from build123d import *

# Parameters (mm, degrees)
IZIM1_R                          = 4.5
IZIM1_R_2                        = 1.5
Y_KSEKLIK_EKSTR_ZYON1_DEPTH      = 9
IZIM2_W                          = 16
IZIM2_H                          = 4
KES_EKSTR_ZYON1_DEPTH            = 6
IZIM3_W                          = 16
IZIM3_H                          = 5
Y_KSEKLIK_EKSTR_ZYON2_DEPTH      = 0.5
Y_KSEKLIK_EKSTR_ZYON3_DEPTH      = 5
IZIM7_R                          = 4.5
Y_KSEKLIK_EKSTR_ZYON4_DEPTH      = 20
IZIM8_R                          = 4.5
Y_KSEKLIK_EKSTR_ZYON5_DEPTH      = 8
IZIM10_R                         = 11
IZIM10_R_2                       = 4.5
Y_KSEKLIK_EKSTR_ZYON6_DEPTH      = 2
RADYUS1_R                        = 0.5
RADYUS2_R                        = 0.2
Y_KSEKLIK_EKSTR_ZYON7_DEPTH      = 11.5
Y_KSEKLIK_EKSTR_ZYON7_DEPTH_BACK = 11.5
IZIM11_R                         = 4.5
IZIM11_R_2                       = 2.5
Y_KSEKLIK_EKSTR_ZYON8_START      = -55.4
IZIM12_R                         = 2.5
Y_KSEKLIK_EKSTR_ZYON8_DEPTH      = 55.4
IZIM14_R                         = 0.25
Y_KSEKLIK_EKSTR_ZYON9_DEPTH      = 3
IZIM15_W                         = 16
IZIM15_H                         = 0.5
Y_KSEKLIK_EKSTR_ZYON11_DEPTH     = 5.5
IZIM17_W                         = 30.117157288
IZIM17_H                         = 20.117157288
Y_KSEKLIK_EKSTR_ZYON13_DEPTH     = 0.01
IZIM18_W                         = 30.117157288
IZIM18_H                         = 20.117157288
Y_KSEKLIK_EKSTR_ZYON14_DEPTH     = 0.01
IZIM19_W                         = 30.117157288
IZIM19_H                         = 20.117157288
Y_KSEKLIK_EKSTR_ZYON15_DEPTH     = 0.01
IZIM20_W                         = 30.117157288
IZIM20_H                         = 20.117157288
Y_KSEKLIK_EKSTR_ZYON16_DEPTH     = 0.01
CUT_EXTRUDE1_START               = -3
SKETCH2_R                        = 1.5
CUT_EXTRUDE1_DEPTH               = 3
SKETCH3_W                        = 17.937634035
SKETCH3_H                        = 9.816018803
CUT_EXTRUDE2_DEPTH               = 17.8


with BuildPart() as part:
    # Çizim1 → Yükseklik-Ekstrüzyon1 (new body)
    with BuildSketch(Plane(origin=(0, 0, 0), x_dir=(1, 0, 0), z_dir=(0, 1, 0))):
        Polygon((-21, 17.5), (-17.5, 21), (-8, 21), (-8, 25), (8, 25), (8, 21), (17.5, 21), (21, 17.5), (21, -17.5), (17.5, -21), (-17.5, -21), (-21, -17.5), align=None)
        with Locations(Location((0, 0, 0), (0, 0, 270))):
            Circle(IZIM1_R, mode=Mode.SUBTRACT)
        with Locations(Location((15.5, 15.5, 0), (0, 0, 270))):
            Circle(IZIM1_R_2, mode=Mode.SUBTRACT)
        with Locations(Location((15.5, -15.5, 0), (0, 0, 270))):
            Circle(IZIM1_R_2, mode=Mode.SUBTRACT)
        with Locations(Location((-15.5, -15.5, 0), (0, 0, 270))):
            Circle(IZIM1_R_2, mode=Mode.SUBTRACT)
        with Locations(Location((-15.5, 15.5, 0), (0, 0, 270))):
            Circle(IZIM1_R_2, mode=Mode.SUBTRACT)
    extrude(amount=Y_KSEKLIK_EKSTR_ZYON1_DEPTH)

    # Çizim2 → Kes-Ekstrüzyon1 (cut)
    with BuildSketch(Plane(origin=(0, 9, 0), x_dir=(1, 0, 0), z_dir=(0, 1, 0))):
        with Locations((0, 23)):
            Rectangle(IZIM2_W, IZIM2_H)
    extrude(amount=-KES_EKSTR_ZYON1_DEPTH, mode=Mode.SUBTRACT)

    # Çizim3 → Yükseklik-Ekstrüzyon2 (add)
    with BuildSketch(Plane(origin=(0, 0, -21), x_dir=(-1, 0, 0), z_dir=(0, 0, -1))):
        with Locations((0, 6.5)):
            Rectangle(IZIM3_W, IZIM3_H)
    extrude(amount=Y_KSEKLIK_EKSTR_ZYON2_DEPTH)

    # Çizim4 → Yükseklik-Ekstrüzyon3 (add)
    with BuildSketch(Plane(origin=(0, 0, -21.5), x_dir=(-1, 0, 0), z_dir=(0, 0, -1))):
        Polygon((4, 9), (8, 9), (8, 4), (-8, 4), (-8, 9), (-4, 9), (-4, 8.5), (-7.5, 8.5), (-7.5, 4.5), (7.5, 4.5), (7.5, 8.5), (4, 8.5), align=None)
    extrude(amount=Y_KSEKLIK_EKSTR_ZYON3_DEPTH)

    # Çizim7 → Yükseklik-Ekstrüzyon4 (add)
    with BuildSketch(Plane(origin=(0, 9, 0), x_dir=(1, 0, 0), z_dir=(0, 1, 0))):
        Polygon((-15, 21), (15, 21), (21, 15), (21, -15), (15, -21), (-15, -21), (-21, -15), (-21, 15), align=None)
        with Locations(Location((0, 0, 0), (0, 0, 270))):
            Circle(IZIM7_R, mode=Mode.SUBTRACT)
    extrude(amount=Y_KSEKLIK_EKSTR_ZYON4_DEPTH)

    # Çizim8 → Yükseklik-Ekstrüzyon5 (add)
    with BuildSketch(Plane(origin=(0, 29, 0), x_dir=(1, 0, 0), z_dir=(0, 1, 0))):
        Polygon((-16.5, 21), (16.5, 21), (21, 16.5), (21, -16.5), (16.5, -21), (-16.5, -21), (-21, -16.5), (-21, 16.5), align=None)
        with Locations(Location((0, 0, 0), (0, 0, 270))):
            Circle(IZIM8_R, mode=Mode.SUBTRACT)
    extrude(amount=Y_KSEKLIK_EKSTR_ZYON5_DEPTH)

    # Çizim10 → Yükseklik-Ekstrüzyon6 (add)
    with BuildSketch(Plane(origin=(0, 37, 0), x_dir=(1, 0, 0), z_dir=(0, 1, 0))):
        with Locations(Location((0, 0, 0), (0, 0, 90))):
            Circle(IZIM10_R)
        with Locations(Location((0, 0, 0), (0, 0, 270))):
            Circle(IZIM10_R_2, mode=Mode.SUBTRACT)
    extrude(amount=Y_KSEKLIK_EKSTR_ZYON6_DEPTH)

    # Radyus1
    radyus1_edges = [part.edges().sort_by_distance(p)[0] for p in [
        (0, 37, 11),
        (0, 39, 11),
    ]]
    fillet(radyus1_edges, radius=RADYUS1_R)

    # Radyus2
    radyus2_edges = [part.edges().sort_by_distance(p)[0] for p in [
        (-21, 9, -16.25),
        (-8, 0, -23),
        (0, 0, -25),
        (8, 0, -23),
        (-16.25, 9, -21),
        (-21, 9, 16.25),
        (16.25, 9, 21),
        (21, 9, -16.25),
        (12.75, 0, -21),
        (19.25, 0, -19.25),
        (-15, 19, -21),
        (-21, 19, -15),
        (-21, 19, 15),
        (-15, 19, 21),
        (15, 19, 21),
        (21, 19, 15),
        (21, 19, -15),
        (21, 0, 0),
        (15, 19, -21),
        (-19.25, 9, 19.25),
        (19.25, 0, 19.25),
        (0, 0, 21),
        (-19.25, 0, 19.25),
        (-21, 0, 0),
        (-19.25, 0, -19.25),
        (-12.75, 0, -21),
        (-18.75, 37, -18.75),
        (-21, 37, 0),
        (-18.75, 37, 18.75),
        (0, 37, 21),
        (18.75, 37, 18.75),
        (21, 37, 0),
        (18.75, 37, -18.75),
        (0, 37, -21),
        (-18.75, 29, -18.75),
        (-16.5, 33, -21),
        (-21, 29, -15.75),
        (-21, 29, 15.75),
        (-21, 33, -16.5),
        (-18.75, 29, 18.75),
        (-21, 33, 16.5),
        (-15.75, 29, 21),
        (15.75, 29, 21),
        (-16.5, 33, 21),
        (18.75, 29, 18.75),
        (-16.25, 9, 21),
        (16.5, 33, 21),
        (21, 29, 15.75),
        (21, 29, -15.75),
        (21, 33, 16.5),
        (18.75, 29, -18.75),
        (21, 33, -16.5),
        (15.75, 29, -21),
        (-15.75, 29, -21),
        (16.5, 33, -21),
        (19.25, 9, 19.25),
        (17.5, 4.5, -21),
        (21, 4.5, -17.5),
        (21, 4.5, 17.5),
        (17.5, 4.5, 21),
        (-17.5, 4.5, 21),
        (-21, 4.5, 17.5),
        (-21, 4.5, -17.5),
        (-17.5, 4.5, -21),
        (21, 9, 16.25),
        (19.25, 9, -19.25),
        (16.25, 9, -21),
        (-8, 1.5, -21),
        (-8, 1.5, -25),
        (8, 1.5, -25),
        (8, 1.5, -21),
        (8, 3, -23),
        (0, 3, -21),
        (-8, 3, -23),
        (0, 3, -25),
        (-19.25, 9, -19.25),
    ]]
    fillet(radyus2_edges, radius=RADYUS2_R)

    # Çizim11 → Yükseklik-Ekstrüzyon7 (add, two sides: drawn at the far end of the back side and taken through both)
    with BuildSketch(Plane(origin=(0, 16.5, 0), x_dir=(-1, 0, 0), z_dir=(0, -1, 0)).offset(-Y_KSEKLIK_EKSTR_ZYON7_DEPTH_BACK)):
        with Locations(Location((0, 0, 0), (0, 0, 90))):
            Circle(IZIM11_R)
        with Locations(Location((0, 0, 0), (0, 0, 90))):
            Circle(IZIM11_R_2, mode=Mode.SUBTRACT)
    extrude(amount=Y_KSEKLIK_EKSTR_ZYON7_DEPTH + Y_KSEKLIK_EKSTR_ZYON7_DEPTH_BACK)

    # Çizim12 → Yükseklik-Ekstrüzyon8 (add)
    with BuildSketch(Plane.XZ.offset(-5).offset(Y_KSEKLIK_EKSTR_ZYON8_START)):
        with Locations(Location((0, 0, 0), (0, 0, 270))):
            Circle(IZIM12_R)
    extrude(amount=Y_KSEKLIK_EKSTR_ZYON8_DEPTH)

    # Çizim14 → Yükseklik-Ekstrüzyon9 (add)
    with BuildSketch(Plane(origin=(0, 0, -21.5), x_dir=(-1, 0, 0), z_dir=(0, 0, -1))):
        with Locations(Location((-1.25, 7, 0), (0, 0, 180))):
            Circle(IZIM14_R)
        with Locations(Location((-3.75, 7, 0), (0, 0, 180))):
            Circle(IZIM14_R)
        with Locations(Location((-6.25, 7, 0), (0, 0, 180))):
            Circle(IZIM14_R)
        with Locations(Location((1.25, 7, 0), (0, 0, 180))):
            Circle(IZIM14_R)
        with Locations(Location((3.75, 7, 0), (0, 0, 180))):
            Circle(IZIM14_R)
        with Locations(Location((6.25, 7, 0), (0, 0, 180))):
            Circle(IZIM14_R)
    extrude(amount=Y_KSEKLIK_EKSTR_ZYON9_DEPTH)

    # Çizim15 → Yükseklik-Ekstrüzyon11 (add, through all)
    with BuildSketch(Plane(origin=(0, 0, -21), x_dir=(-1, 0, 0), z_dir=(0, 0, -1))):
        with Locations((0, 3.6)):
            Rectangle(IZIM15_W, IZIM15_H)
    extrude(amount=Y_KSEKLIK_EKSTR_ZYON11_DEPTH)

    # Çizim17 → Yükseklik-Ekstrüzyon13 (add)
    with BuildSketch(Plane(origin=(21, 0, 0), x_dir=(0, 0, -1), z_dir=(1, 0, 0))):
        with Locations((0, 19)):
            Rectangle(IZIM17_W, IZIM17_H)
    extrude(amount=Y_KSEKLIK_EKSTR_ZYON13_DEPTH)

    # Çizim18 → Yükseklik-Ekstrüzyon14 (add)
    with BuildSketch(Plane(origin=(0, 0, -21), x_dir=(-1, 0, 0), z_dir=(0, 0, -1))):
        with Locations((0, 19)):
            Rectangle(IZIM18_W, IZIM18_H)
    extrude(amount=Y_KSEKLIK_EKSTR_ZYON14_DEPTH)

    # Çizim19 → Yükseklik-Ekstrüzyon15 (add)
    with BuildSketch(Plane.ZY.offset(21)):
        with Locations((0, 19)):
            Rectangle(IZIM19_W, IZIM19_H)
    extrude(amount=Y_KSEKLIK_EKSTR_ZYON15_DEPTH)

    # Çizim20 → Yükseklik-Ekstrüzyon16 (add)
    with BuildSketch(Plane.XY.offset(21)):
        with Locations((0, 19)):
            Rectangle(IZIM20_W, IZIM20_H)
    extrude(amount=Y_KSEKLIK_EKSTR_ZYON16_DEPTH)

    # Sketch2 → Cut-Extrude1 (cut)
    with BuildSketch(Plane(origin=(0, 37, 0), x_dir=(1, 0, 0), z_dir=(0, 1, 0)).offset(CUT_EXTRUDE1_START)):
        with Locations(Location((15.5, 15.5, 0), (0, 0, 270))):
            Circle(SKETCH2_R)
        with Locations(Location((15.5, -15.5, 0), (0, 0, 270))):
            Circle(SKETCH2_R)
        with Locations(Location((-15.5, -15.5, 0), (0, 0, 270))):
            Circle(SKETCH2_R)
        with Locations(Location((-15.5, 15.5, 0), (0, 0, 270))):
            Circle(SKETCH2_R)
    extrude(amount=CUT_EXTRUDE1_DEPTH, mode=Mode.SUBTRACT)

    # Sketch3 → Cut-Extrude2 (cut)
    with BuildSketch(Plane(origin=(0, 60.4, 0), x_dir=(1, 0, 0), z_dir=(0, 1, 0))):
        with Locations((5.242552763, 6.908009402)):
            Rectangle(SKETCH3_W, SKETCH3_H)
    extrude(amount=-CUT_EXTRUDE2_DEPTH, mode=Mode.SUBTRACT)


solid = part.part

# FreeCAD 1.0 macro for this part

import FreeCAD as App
import Part
import Sketcher
from FreeCAD import Vector
Q = App.Units.Quantity


def edges_at(feature, points):
    """Names of the edges that pass closest to the given points."""
    edges = feature.Shape.Edges
    near = lambda p: min(range(len(edges)), key=lambda i: edges[i].distToShape(Part.Vertex(*p))[0])
    return sorted({f"Edge{near(p) + 1}" for p in points})

doc = App.newDocument("Part")
body = doc.addObject("PartDesign::Body", "Body")

# Sketch on XZ plane
sketch1 = doc.addObject("Sketcher::SketchObject", "Sketch")
body.addObject(sketch1)
sketch1.AttachmentSupport = (doc.XZ_Plane, [""])
sketch1.MapMode = "FlatFace"
sketch1.addGeometry([
    Part.LineSegment(Vector(-17.5, -21, 0), Vector(-21, -17.5, 0)),  # 0
    Part.LineSegment(Vector(-21, -17.5, 0), Vector(-21, 17.5, 0)),  # 1
    Part.LineSegment(Vector(-21, 17.5, 0), Vector(-17.5, 21, 0)),  # 2
    Part.LineSegment(Vector(-17.5, 21, 0), Vector(17.5, 21, 0)),  # 3
    Part.LineSegment(Vector(17.5, 21, 0), Vector(21, 17.5, 0)),  # 4
    Part.LineSegment(Vector(21, 17.5, 0), Vector(21, -17.5, 0)),  # 5
    Part.LineSegment(Vector(21, -17.5, 0), Vector(17.5, -21, 0)),  # 6
    Part.LineSegment(Vector(17.5, -21, 0), Vector(8, -21, 0)),  # 7
    Part.LineSegment(Vector(8, -21, 0), Vector(8, -25, 0)),  # 8
    Part.LineSegment(Vector(8, -25, 0), Vector(-8, -25, 0)),  # 9
    Part.LineSegment(Vector(-8, -25, 0), Vector(-8, -21, 0)),  # 10
    Part.LineSegment(Vector(-8, -21, 0), Vector(-17.5, -21, 0)),  # 11
    Part.Circle(Vector(15.5, 15.5, 0), Vector(0, 0, 1), 1.5),  # 12
    Part.Circle(Vector(-15.5, 15.5, 0), Vector(0, 0, 1), 1.5),  # 13
    Part.Circle(Vector(15.5, -15.5, 0), Vector(0, 0, 1), 1.5),  # 14
    Part.Circle(Vector(0, 0, 0), Vector(0, 0, 1), 4.5),  # 15
    Part.Circle(Vector(-15.5, -15.5, 0), Vector(0, 0, 1), 1.5),  # 16
], False)
sketch1.addConstraint([
    Sketcher.Constraint("Coincident", 0, 2, 1, 1),
    Sketcher.Constraint("Coincident", 1, 2, 2, 1),
    Sketcher.Constraint("Coincident", 2, 2, 3, 1),
    Sketcher.Constraint("Coincident", 3, 2, 4, 1),
    Sketcher.Constraint("Coincident", 4, 2, 5, 1),
    Sketcher.Constraint("Coincident", 5, 2, 6, 1),
    Sketcher.Constraint("Coincident", 6, 2, 7, 1),
    Sketcher.Constraint("Coincident", 7, 2, 8, 1),
    Sketcher.Constraint("Coincident", 8, 2, 9, 1),
    Sketcher.Constraint("Coincident", 9, 2, 10, 1),
    Sketcher.Constraint("Coincident", 10, 2, 11, 1),
    Sketcher.Constraint("Coincident", 11, 2, 0, 1),
    Sketcher.Constraint("Vertical", 1),
    Sketcher.Constraint("Horizontal", 3),
    Sketcher.Constraint("Vertical", 5),
    Sketcher.Constraint("Horizontal", 7),
    Sketcher.Constraint("Vertical", 8),
    Sketcher.Constraint("Horizontal", 9),
    Sketcher.Constraint("Vertical", 10),
    Sketcher.Constraint("Horizontal", 11),
    Sketcher.Constraint("Coincident", 15, 3, -1, 1),
    Sketcher.Constraint("Equal", 12, 13),
    Sketcher.Constraint("Equal", 13, 14),
    Sketcher.Constraint("Equal", 14, 16),
    Sketcher.Constraint("Symmetric", 13, 3, 14, 3, -1, 1),
    Sketcher.Constraint("Symmetric", 12, 3, 16, 3, -1, 1),
    Sketcher.Constraint("Symmetric", 0, 2, 4, 2, -1, 1),
    Sketcher.Constraint("Symmetric", 2, 2, 6, 2, -1, 1),
    Sketcher.Constraint("Symmetric", 3, 2, 11, 2, -1, 1),
    Sketcher.Constraint("Symmetric", 12, 3, 13, 3, -2),
    Sketcher.Constraint("Perpendicular", 0, 2),
    Sketcher.Constraint("Perpendicular", 4, 6),
    Sketcher.Constraint("Horizontal", 1, 2, 4, 2),
    Sketcher.Constraint("Vertical", 3, 2, 6, 2),
    Sketcher.Constraint("Equal", 7, 11),
    Sketcher.Constraint("Equal", 3, 1),
    Sketcher.Constraint("Diameter", 12, Q("3 mm")),
    Sketcher.Constraint("Diameter", 15, Q("9 mm")),
    Sketcher.Constraint("DistanceX", 3, 1, 3, 2, Q("35 mm")),
    Sketcher.Constraint("DistanceX", 9, 2, 9, 1, Q("16 mm")),
    Sketcher.Constraint("DistanceY", 8, 2, 8, 1, Q("4 mm")),
    Sketcher.Constraint("DistanceX", 0, 2, -1, 1, Q("21 mm")),
    Sketcher.Constraint("DistanceX", 13, 3, 12, 3, Q("31 mm")),
    Sketcher.Constraint("DistanceY", 14, 3, 12, 3, Q("31 mm")),
])
pad1 = doc.addObject("PartDesign::Pad", "Pad")
body.addObject(pad1)
pad1.Profile = sketch1
pad1.Length = 9
pad1.Reversed = True

# Sketch on XZ plane
sketch2 = doc.addObject("Sketcher::SketchObject", "Sketch001")
body.addObject(sketch2)
sketch2.AttachmentSupport = (doc.XZ_Plane, [""])
sketch2.MapMode = "FlatFace"
sketch2.AttachmentOffset = App.Placement(Vector(0, 0, -9), App.Rotation())
sketch2.addGeometry([
    Part.LineSegment(Vector(-8, -25, 0), Vector(-8, -21, 0)),
    Part.LineSegment(Vector(-8, -21, 0), Vector(8, -21, 0)),
    Part.LineSegment(Vector(8, -21, 0), Vector(8, -25, 0)),
    Part.LineSegment(Vector(8, -25, 0), Vector(-8, -25, 0)),
], False)
sketch2.addConstraint([
    Sketcher.Constraint("Coincident", 0, 2, 1, 1),
    Sketcher.Constraint("Coincident", 1, 2, 2, 1),
    Sketcher.Constraint("Coincident", 2, 2, 3, 1),
    Sketcher.Constraint("Coincident", 3, 2, 0, 1),
    Sketcher.Constraint("Vertical", 0),
    Sketcher.Constraint("Horizontal", 1),
    Sketcher.Constraint("Vertical", 2),
    Sketcher.Constraint("Horizontal", 3),
    Sketcher.Constraint("DistanceX", 1, 1, 1, 2, Q("16 mm")),
    Sketcher.Constraint("DistanceY", 0, 1, 0, 2, Q("4 mm")),
    Sketcher.Constraint("DistanceX", 0, 2, -1, 1, Q("8 mm")),
    Sketcher.Constraint("DistanceY", 0, 2, -1, 1, Q("21 mm")),
])
pocket1 = doc.addObject("PartDesign::Pocket", "Pocket")
body.addObject(pocket1)
pocket1.Profile = sketch2
pocket1.Length = 6
pocket1.Reversed = True

# Sketch on XY plane
sketch3 = doc.addObject("Sketcher::SketchObject", "Sketch002")
body.addObject(sketch3)
sketch3.AttachmentSupport = (doc.XY_Plane, [""])
sketch3.MapMode = "FlatFace"
sketch3.AttachmentOffset = App.Placement(Vector(0, 0, -21), App.Rotation())
sketch3.addGeometry([
    Part.LineSegment(Vector(8, 9, 0), Vector(8, 4, 0)),
    Part.LineSegment(Vector(8, 4, 0), Vector(-8, 4, 0)),
    Part.LineSegment(Vector(-8, 4, 0), Vector(-8, 9, 0)),
    Part.LineSegment(Vector(-8, 9, 0), Vector(8, 9, 0)),
], False)
sketch3.addConstraint([
    Sketcher.Constraint("Coincident", 0, 2, 1, 1),
    Sketcher.Constraint("Coincident", 1, 2, 2, 1),
    Sketcher.Constraint("Coincident", 2, 2, 3, 1),
    Sketcher.Constraint("Coincident", 3, 2, 0, 1),
    Sketcher.Constraint("Vertical", 0),
    Sketcher.Constraint("Horizontal", 1),
    Sketcher.Constraint("Vertical", 2),
    Sketcher.Constraint("Horizontal", 3),
    Sketcher.Constraint("DistanceX", 1, 2, 1, 1, Q("16 mm")),
    Sketcher.Constraint("DistanceY", 0, 2, 0, 1, Q("5 mm")),
    Sketcher.Constraint("DistanceX", -1, 1, 0, 2, Q("8 mm")),
    Sketcher.Constraint("DistanceY", -1, 1, 0, 2, Q("4 mm")),
])
pad2 = doc.addObject("PartDesign::Pad", "Pad001")
body.addObject(pad2)
pad2.Profile = sketch3
pad2.Length = 0.5
pad2.Reversed = True

# Sketch on XY plane
sketch4 = doc.addObject("Sketcher::SketchObject", "Sketch003")
body.addObject(sketch4)
sketch4.AttachmentSupport = (doc.XY_Plane, [""])
sketch4.MapMode = "FlatFace"
sketch4.AttachmentOffset = App.Placement(Vector(0, 0, -21.5), App.Rotation())
sketch4.addGeometry([
    Part.LineSegment(Vector(-8, 9, 0), Vector(-4, 9, 0)),  # 0
    Part.LineSegment(Vector(-4, 9, 0), Vector(-4, 8.5, 0)),  # 1
    Part.LineSegment(Vector(-4, 8.5, 0), Vector(-7.5, 8.5, 0)),  # 2
    Part.LineSegment(Vector(-7.5, 8.5, 0), Vector(-7.5, 4.5, 0)),  # 3
    Part.LineSegment(Vector(-7.5, 4.5, 0), Vector(7.5, 4.5, 0)),  # 4
    Part.LineSegment(Vector(7.5, 4.5, 0), Vector(7.5, 8.5, 0)),  # 5
    Part.LineSegment(Vector(7.5, 8.5, 0), Vector(4, 8.5, 0)),  # 6
    Part.LineSegment(Vector(4, 8.5, 0), Vector(4, 9, 0)),  # 7
    Part.LineSegment(Vector(4, 9, 0), Vector(8, 9, 0)),  # 8
    Part.LineSegment(Vector(8, 9, 0), Vector(8, 4, 0)),  # 9
    Part.LineSegment(Vector(8, 4, 0), Vector(-8, 4, 0)),  # 10
    Part.LineSegment(Vector(-8, 4, 0), Vector(-8, 9, 0)),  # 11
], False)
sketch4.addConstraint([
    Sketcher.Constraint("Coincident", 0, 2, 1, 1),
    Sketcher.Constraint("Coincident", 1, 2, 2, 1),
    Sketcher.Constraint("Coincident", 2, 2, 3, 1),
    Sketcher.Constraint("Coincident", 3, 2, 4, 1),
    Sketcher.Constraint("Coincident", 4, 2, 5, 1),
    Sketcher.Constraint("Coincident", 5, 2, 6, 1),
    Sketcher.Constraint("Coincident", 6, 2, 7, 1),
    Sketcher.Constraint("Coincident", 7, 2, 8, 1),
    Sketcher.Constraint("Coincident", 8, 2, 9, 1),
    Sketcher.Constraint("Coincident", 9, 2, 10, 1),
    Sketcher.Constraint("Coincident", 10, 2, 11, 1),
    Sketcher.Constraint("Coincident", 11, 2, 0, 1),
    Sketcher.Constraint("Horizontal", 0),
    Sketcher.Constraint("Vertical", 1),
    Sketcher.Constraint("Horizontal", 2),
    Sketcher.Constraint("Vertical", 3),
    Sketcher.Constraint("Horizontal", 4),
    Sketcher.Constraint("Vertical", 5),
    Sketcher.Constraint("Horizontal", 6),
    Sketcher.Constraint("Vertical", 7),
    Sketcher.Constraint("Horizontal", 8),
    Sketcher.Constraint("Vertical", 9),
    Sketcher.Constraint("Horizontal", 10),
    Sketcher.Constraint("Vertical", 11),
    Sketcher.Constraint("Symmetric", 2, 2, 5, 2, -2),
    Sketcher.Constraint("Symmetric", 0, 2, 7, 2, -2),
    Sketcher.Constraint("Equal", 0, 8),
    Sketcher.Constraint("Equal", 8, 3),
    Sketcher.Constraint("DistanceX", 0, 1, 0, 2, Q("4 mm")),
    Sketcher.Constraint("DistanceX", 4, 1, 4, 2, Q("15 mm")),
    Sketcher.Constraint("DistanceX", 10, 2, 10, 1, Q("16 mm")),
    Sketcher.Constraint("DistanceY", 9, 2, 9, 1, Q("5 mm")),
    Sketcher.Constraint("DistanceY", 1, 2, 1, 1, Q("0.5 mm")),
    Sketcher.Constraint("DistanceY", -1, 1, 0, 2, Q("9 mm")),
])
pad3 = doc.addObject("PartDesign::Pad", "Pad002")
body.addObject(pad3)
pad3.Profile = sketch4
pad3.Length = 5
pad3.Reversed = True

# Sketch on XZ plane
sketch5 = doc.addObject("Sketcher::SketchObject", "Sketch004")
body.addObject(sketch5)
sketch5.AttachmentSupport = (doc.XZ_Plane, [""])
sketch5.MapMode = "FlatFace"
sketch5.AttachmentOffset = App.Placement(Vector(0, 0, -9), App.Rotation())
sketch5.addGeometry([
    Part.LineSegment(Vector(15, -21, 0), Vector(-15, -21, 0)),  # 0
    Part.LineSegment(Vector(-15, -21, 0), Vector(-21, -15, 0)),  # 1
    Part.LineSegment(Vector(-21, -15, 0), Vector(-21, 15, 0)),  # 2
    Part.LineSegment(Vector(-21, 15, 0), Vector(-15, 21, 0)),  # 3
    Part.LineSegment(Vector(-15, 21, 0), Vector(15, 21, 0)),  # 4
    Part.LineSegment(Vector(15, 21, 0), Vector(21, 15, 0)),  # 5
    Part.LineSegment(Vector(21, 15, 0), Vector(21, -15, 0)),  # 6
    Part.LineSegment(Vector(21, -15, 0), Vector(15, -21, 0)),  # 7
    Part.Circle(Vector(0, 0, 0), Vector(0, 0, 1), 4.5),  # 8
], False)
sketch5.addConstraint([
    Sketcher.Constraint("Coincident", 0, 2, 1, 1),
    Sketcher.Constraint("Coincident", 1, 2, 2, 1),
    Sketcher.Constraint("Coincident", 2, 2, 3, 1),
    Sketcher.Constraint("Coincident", 3, 2, 4, 1),
    Sketcher.Constraint("Coincident", 4, 2, 5, 1),
    Sketcher.Constraint("Coincident", 5, 2, 6, 1),
    Sketcher.Constraint("Coincident", 6, 2, 7, 1),
    Sketcher.Constraint("Coincident", 7, 2, 0, 1),
    Sketcher.Constraint("Horizontal", 0),
    Sketcher.Constraint("Vertical", 2),
    Sketcher.Constraint("Horizontal", 4),
    Sketcher.Constraint("Vertical", 6),
    Sketcher.Constraint("Coincident", 8, 3, -1, 1),
    Sketcher.Constraint("Symmetric", 0, 2, 4, 2, -1, 1),
    Sketcher.Constraint("Symmetric", 1, 2, 5, 2, -1, 1),
    Sketcher.Constraint("Perpendicular", 1, 3),
    Sketcher.Constraint("Perpendicular", 5, 7),
    Sketcher.Constraint("Horizontal", 2, 2, 5, 2),
    Sketcher.Constraint("Horizontal", 1, 2, 6, 2),
    Sketcher.Constraint("Vertical", 0, 2, 3, 2),
    Sketcher.Constraint("Equal", 4, 2),
    Sketcher.Constraint("Diameter", 8, Q("9 mm")),
    Sketcher.Constraint("DistanceX", 0, 2, 0, 1, Q("30 mm")),
    Sketcher.Constraint("DistanceY", 0, 2, -1, 1, Q("21 mm")),
])
pad4 = doc.addObject("PartDesign::Pad", "Pad003")
body.addObject(pad4)
pad4.Profile = sketch5
pad4.Length = 20
pad4.Reversed = True

# Sketch on XZ plane
sketch6 = doc.addObject("Sketcher::SketchObject", "Sketch005")
body.addObject(sketch6)
sketch6.AttachmentSupport = (doc.XZ_Plane, [""])
sketch6.MapMode = "FlatFace"
sketch6.AttachmentOffset = App.Placement(Vector(0, 0, -29), App.Rotation())
sketch6.addGeometry([
    Part.LineSegment(Vector(16.5, -21, 0), Vector(-16.5, -21, 0)),  # 0
    Part.LineSegment(Vector(-16.5, -21, 0), Vector(-21, -16.5, 0)),  # 1
    Part.LineSegment(Vector(-21, -16.5, 0), Vector(-21, 16.5, 0)),  # 2
    Part.LineSegment(Vector(-21, 16.5, 0), Vector(-16.5, 21, 0)),  # 3
    Part.LineSegment(Vector(-16.5, 21, 0), Vector(16.5, 21, 0)),  # 4
    Part.LineSegment(Vector(16.5, 21, 0), Vector(21, 16.5, 0)),  # 5
    Part.LineSegment(Vector(21, 16.5, 0), Vector(21, -16.5, 0)),  # 6
    Part.LineSegment(Vector(21, -16.5, 0), Vector(16.5, -21, 0)),  # 7
    Part.Circle(Vector(0, 0, 0), Vector(0, 0, 1), 4.5),  # 8
], False)
sketch6.addConstraint([
    Sketcher.Constraint("Coincident", 0, 2, 1, 1),
    Sketcher.Constraint("Coincident", 1, 2, 2, 1),
    Sketcher.Constraint("Coincident", 2, 2, 3, 1),
    Sketcher.Constraint("Coincident", 3, 2, 4, 1),
    Sketcher.Constraint("Coincident", 4, 2, 5, 1),
    Sketcher.Constraint("Coincident", 5, 2, 6, 1),
    Sketcher.Constraint("Coincident", 6, 2, 7, 1),
    Sketcher.Constraint("Coincident", 7, 2, 0, 1),
    Sketcher.Constraint("Horizontal", 0),
    Sketcher.Constraint("Vertical", 2),
    Sketcher.Constraint("Horizontal", 4),
    Sketcher.Constraint("Vertical", 6),
    Sketcher.Constraint("Coincident", 8, 3, -1, 1),
    Sketcher.Constraint("Symmetric", 0, 2, 4, 2, -1, 1),
    Sketcher.Constraint("Symmetric", 1, 2, 5, 2, -1, 1),
    Sketcher.Constraint("Perpendicular", 1, 3),
    Sketcher.Constraint("Perpendicular", 5, 7),
    Sketcher.Constraint("Horizontal", 2, 2, 5, 2),
    Sketcher.Constraint("Horizontal", 1, 2, 6, 2),
    Sketcher.Constraint("Vertical", 0, 2, 3, 2),
    Sketcher.Constraint("Equal", 4, 2),
    Sketcher.Constraint("Diameter", 8, Q("9 mm")),
    Sketcher.Constraint("DistanceX", 0, 2, 0, 1, Q("33 mm")),
    Sketcher.Constraint("DistanceY", 0, 2, -1, 1, Q("21 mm")),
])
pad5 = doc.addObject("PartDesign::Pad", "Pad004")
body.addObject(pad5)
pad5.Profile = sketch6
pad5.Length = 8
pad5.Reversed = True

# Sketch on XZ plane
sketch7 = doc.addObject("Sketcher::SketchObject", "Sketch006")
body.addObject(sketch7)
sketch7.AttachmentSupport = (doc.XZ_Plane, [""])
sketch7.MapMode = "FlatFace"
sketch7.AttachmentOffset = App.Placement(Vector(0, 0, -37), App.Rotation())
sketch7.addGeometry([
    Part.Circle(Vector(0, 0, 0), Vector(0, 0, 1), 11),
    Part.Circle(Vector(0, 0, 0), Vector(0, 0, 1), 4.5),
], False)
sketch7.addConstraint([
    Sketcher.Constraint("Coincident", 0, 3, -1, 1),
    Sketcher.Constraint("Coincident", 1, 3, -1, 1),
    Sketcher.Constraint("Diameter", 0, Q("22 mm")),
    Sketcher.Constraint("Diameter", 1, Q("9 mm")),
])
pad6 = doc.addObject("PartDesign::Pad", "Pad005")
body.addObject(pad6)
pad6.Profile = sketch7
pad6.Length = 2
pad6.Reversed = True
doc.recompute()

fillet = doc.addObject("PartDesign::Fillet", "Fillet")
body.addObject(fillet)
fillet.Base = (pad6, edges_at(pad6, [(0, 37, 11), (0, 39, 11)]))
fillet.Radius = 0.5
doc.recompute()

fillet2 = doc.addObject("PartDesign::Fillet", "Fillet001")
body.addObject(fillet2)
fillet2.Base = (fillet, edges_at(fillet, [
    (-21, 9, -16.25),
    (-8, 0, -23),
    (0, 0, -25),
    (8, 0, -23),
    (-16.25, 9, -21),
    (-21, 9, 16.25),
    (16.25, 9, 21),
    (21, 9, -16.25),
    (12.75, 0, -21),
    (19.25, 0, -19.25),
    (-15, 19, -21),
    (-21, 19, -15),
    (-21, 19, 15),
    (-15, 19, 21),
    (15, 19, 21),
    (21, 19, 15),
    (21, 19, -15),
    (21, 0, 0),
    (15, 19, -21),
    (-19.25, 9, 19.25),
    (19.25, 0, 19.25),
    (0, 0, 21),
    (-19.25, 0, 19.25),
    (-21, 0, 0),
    (-19.25, 0, -19.25),
    (-12.75, 0, -21),
    (-18.75, 37, -18.75),
    (-21, 37, 0),
    (-18.75, 37, 18.75),
    (0, 37, 21),
    (18.75, 37, 18.75),
    (21, 37, 0),
    (18.75, 37, -18.75),
    (0, 37, -21),
    (-18.75, 29, -18.75),
    (-16.5, 33, -21),
    (-21, 29, -15.75),
    (-21, 29, 15.75),
    (-21, 33, -16.5),
    (-18.75, 29, 18.75),
    (-21, 33, 16.5),
    (-15.75, 29, 21),
    (15.75, 29, 21),
    (-16.5, 33, 21),
    (18.75, 29, 18.75),
    (-16.25, 9, 21),
    (16.5, 33, 21),
    (21, 29, 15.75),
    (21, 29, -15.75),
    (21, 33, 16.5),
    (18.75, 29, -18.75),
    (21, 33, -16.5),
    (15.75, 29, -21),
    (-15.75, 29, -21),
    (16.5, 33, -21),
    (19.25, 9, 19.25),
    (17.5, 4.5, -21),
    (21, 4.5, -17.5),
    (21, 4.5, 17.5),
    (17.5, 4.5, 21),
    (-17.5, 4.5, 21),
    (-21, 4.5, 17.5),
    (-21, 4.5, -17.5),
    (-17.5, 4.5, -21),
    (21, 9, 16.25),
    (19.25, 9, -19.25),
    (16.25, 9, -21),
    (-8, 1.5, -21),
    (-8, 1.5, -25),
    (8, 1.5, -25),
    (8, 1.5, -21),
    (8, 3, -23),
    (0, 3, -21),
    (-8, 3, -23),
    (0, 3, -25),
    (-19.25, 9, -19.25),
]))
fillet2.Radius = 0.2

# Sketch on XZ plane
sketch8 = doc.addObject("Sketcher::SketchObject", "Sketch007")
body.addObject(sketch8)
sketch8.AttachmentSupport = (doc.XZ_Plane, [""])
sketch8.MapMode = "FlatFace"
sketch8.AttachmentOffset = App.Placement(Vector(0, 0, -16.5), App.Rotation())
sketch8.addGeometry([
    Part.Circle(Vector(0, 0, 0), Vector(0, 0, 1), 4.5),
    Part.Circle(Vector(0, 0, 0), Vector(0, 0, 1), 2.5),
], False)
sketch8.addConstraint([
    Sketcher.Constraint("Coincident", 0, 3, -1, 1),
    Sketcher.Constraint("Coincident", 1, 3, -1, 1),
    Sketcher.Constraint("Diameter", 0, Q("9 mm")),
    Sketcher.Constraint("Diameter", 1, Q("5 mm")),
])
pad7 = doc.addObject("PartDesign::Pad", "Pad006")
body.addObject(pad7)
pad7.Profile = sketch8
pad7.Type = "TwoLengths"
pad7.Length = 11.5
pad7.Length2 = 11.5

# Sketch on XZ plane
sketch9 = doc.addObject("Sketcher::SketchObject", "Sketch008")
body.addObject(sketch9)
sketch9.AttachmentSupport = (doc.XZ_Plane, [""])
sketch9.MapMode = "FlatFace"
sketch9.AttachmentOffset = App.Placement(Vector(0, 0, -60.4), App.Rotation())
sketch9.addGeometry(Part.Circle(Vector(0, 0, 0), Vector(0, 0, 1), 2.5), False)
sketch9.addConstraint([
    Sketcher.Constraint("Coincident", 0, 3, -1, 1),
    Sketcher.Constraint("Diameter", 0, Q("5 mm")),
])
pad8 = doc.addObject("PartDesign::Pad", "Pad007")
body.addObject(pad8)
pad8.Profile = sketch9
pad8.Length = 55.4

# Sketch on XY plane
sketch10 = doc.addObject("Sketcher::SketchObject", "Sketch009")
body.addObject(sketch10)
sketch10.AttachmentSupport = (doc.XY_Plane, [""])
sketch10.MapMode = "FlatFace"
sketch10.AttachmentOffset = App.Placement(Vector(0, 0, -21.5), App.Rotation())
sketch10.addGeometry([
    Part.Circle(Vector(1.25, 7, 0), Vector(0, 0, 1), 0.25),  # 0
    Part.Circle(Vector(3.75, 7, 0), Vector(0, 0, 1), 0.25),  # 1
    Part.Circle(Vector(6.25, 7, 0), Vector(0, 0, 1), 0.25),  # 2
    Part.Circle(Vector(-1.25, 7, 0), Vector(0, 0, 1), 0.25),  # 3
    Part.Circle(Vector(-3.75, 7, 0), Vector(0, 0, 1), 0.25),  # 4
    Part.Circle(Vector(-6.25, 7, 0), Vector(0, 0, 1), 0.25),  # 5
], False)
sketch10.addConstraint([
    Sketcher.Constraint("Equal", 0, 1),
    Sketcher.Constraint("Equal", 1, 2),
    Sketcher.Constraint("Equal", 2, 3),
    Sketcher.Constraint("Equal", 3, 4),
    Sketcher.Constraint("Equal", 4, 5),
    Sketcher.Constraint("Symmetric", 0, 3, 3, 3, -2),
    Sketcher.Constraint("Symmetric", 1, 3, 4, 3, -2),
    Sketcher.Constraint("Symmetric", 2, 3, 5, 3, -2),
    Sketcher.Constraint("Horizontal", 0, 3, 1, 3),
    Sketcher.Constraint("Horizontal", 1, 3, 2, 3),
    Sketcher.Constraint("Diameter", 0, Q("0.5 mm")),
    Sketcher.Constraint("DistanceY", -1, 1, 0, 3, Q("7 mm")),
    Sketcher.Constraint("DistanceX", 0, 3, 2, 3, Q("5 mm")),
    Sketcher.Constraint("DistanceX", 3, 3, 1, 3, Q("5 mm")),
    Sketcher.Constraint("DistanceX", 0, 3, 1, 3, Q("2.5 mm")),
])
pad9 = doc.addObject("PartDesign::Pad", "Pad008")
body.addObject(pad9)
pad9.Profile = sketch10
pad9.Length = 3
pad9.Reversed = True

# Sketch on XY plane
sketch11 = doc.addObject("Sketcher::SketchObject", "Sketch010")
body.addObject(sketch11)
sketch11.AttachmentSupport = (doc.XY_Plane, [""])
sketch11.MapMode = "FlatFace"
sketch11.AttachmentOffset = App.Placement(Vector(0, 0, -21), App.Rotation())
sketch11.addGeometry([
    Part.LineSegment(Vector(8, 3.9, 0), Vector(8, 3.4, 0)),
    Part.LineSegment(Vector(8, 3.4, 0), Vector(-8, 3.4, 0)),
    Part.LineSegment(Vector(-8, 3.4, 0), Vector(-8, 3.9, 0)),
    Part.LineSegment(Vector(-8, 3.9, 0), Vector(8, 3.9, 0)),
], False)
sketch11.addConstraint([
    Sketcher.Constraint("Coincident", 0, 2, 1, 1),
    Sketcher.Constraint("Coincident", 1, 2, 2, 1),
    Sketcher.Constraint("Coincident", 2, 2, 3, 1),
    Sketcher.Constraint("Coincident", 3, 2, 0, 1),
    Sketcher.Constraint("Vertical", 0),
    Sketcher.Constraint("Horizontal", 1),
    Sketcher.Constraint("Vertical", 2),
    Sketcher.Constraint("Horizontal", 3),
    Sketcher.Constraint("DistanceX", 1, 2, 1, 1, Q("16 mm")),
    Sketcher.Constraint("DistanceY", 0, 2, 0, 1, Q("0.5 mm")),
    Sketcher.Constraint("DistanceX", -1, 1, 0, 2, Q("8 mm")),
    Sketcher.Constraint("DistanceY", -1, 1, 0, 2, Q("3.35 mm")),
])
pad10 = doc.addObject("PartDesign::Pad", "Pad009")
body.addObject(pad10)
pad10.Profile = sketch11
pad10.Length = 5.5
pad10.Reversed = True

# Sketch on YZ plane
sketch12 = doc.addObject("Sketcher::SketchObject", "Sketch011")
body.addObject(sketch12)
sketch12.AttachmentSupport = (doc.YZ_Plane, [""])
sketch12.MapMode = "FlatFace"
sketch12.AttachmentOffset = App.Placement(Vector(0, 0, 21), App.Rotation())
sketch12.addGeometry([
    Part.LineSegment(Vector(29, 15, 0), Vector(9, 15, 0)),
    Part.LineSegment(Vector(9, 15, 0), Vector(9, -15, 0)),
    Part.LineSegment(Vector(9, -15, 0), Vector(29, -15, 0)),
    Part.LineSegment(Vector(29, -15, 0), Vector(29, 15, 0)),
], False)
sketch12.addConstraint([
    Sketcher.Constraint("Coincident", 0, 2, 1, 1),
    Sketcher.Constraint("Coincident", 1, 2, 2, 1),
    Sketcher.Constraint("Coincident", 2, 2, 3, 1),
    Sketcher.Constraint("Coincident", 3, 2, 0, 1),
    Sketcher.Constraint("Horizontal", 0),
    Sketcher.Constraint("Vertical", 1),
    Sketcher.Constraint("Horizontal", 2),
    Sketcher.Constraint("Vertical", 3),
    Sketcher.Constraint("DistanceX", 0, 2, 0, 1, Q("20.117157 mm")),
    Sketcher.Constraint("DistanceY", 1, 2, 1, 1, Q("30.117157 mm")),
    Sketcher.Constraint("DistanceX", -1, 1, 0, 2, Q("8.941421 mm")),
    Sketcher.Constraint("DistanceY", -1, 1, 0, 2, Q("15.058579 mm")),
])
pad11 = doc.addObject("PartDesign::Pad", "Pad010")
body.addObject(pad11)
pad11.Profile = sketch12
pad11.Length = 0.01

# Sketch on XY plane
sketch13 = doc.addObject("Sketcher::SketchObject", "Sketch012")
body.addObject(sketch13)
sketch13.AttachmentSupport = (doc.XY_Plane, [""])
sketch13.MapMode = "FlatFace"
sketch13.AttachmentOffset = App.Placement(Vector(0, 0, -21), App.Rotation())
sketch13.addGeometry([
    Part.LineSegment(Vector(15, 29, 0), Vector(15, 9, 0)),
    Part.LineSegment(Vector(15, 9, 0), Vector(-15, 9, 0)),
    Part.LineSegment(Vector(-15, 9, 0), Vector(-15, 29, 0)),
    Part.LineSegment(Vector(-15, 29, 0), Vector(15, 29, 0)),
], False)
sketch13.addConstraint([
    Sketcher.Constraint("Coincident", 0, 2, 1, 1),
    Sketcher.Constraint("Coincident", 1, 2, 2, 1),
    Sketcher.Constraint("Coincident", 2, 2, 3, 1),
    Sketcher.Constraint("Coincident", 3, 2, 0, 1),
    Sketcher.Constraint("Vertical", 0),
    Sketcher.Constraint("Horizontal", 1),
    Sketcher.Constraint("Vertical", 2),
    Sketcher.Constraint("Horizontal", 3),
    Sketcher.Constraint("DistanceX", 1, 2, 1, 1, Q("30.117157 mm")),
    Sketcher.Constraint("DistanceY", 0, 2, 0, 1, Q("20.117157 mm")),
    Sketcher.Constraint("DistanceX", -1, 1, 0, 2, Q("15.058579 mm")),
    Sketcher.Constraint("DistanceY", -1, 1, 0, 2, Q("8.941421 mm")),
])
pad12 = doc.addObject("PartDesign::Pad", "Pad011")
body.addObject(pad12)
pad12.Profile = sketch13
pad12.Length = 0.01
pad12.Reversed = True

# Sketch on YZ plane
sketch14 = doc.addObject("Sketcher::SketchObject", "Sketch013")
body.addObject(sketch14)
sketch14.AttachmentSupport = (doc.YZ_Plane, [""])
sketch14.MapMode = "FlatFace"
sketch14.AttachmentOffset = App.Placement(Vector(0, 0, -21), App.Rotation())
sketch14.addGeometry([
    Part.LineSegment(Vector(29, -15, 0), Vector(9, -15, 0)),
    Part.LineSegment(Vector(9, -15, 0), Vector(9, 15, 0)),
    Part.LineSegment(Vector(9, 15, 0), Vector(29, 15, 0)),
    Part.LineSegment(Vector(29, 15, 0), Vector(29, -15, 0)),
], False)
sketch14.addConstraint([
    Sketcher.Constraint("Coincident", 0, 2, 1, 1),
    Sketcher.Constraint("Coincident", 1, 2, 2, 1),
    Sketcher.Constraint("Coincident", 2, 2, 3, 1),
    Sketcher.Constraint("Coincident", 3, 2, 0, 1),
    Sketcher.Constraint("Horizontal", 0),
    Sketcher.Constraint("Vertical", 1),
    Sketcher.Constraint("Horizontal", 2),
    Sketcher.Constraint("Vertical", 3),
    Sketcher.Constraint("DistanceX", 0, 2, 0, 1, Q("20.117157 mm")),
    Sketcher.Constraint("DistanceY", 1, 1, 1, 2, Q("30.117157 mm")),
    Sketcher.Constraint("DistanceX", -1, 1, 0, 2, Q("8.941421 mm")),
    Sketcher.Constraint("DistanceY", 0, 2, -1, 1, Q("15.058579 mm")),
])
pad13 = doc.addObject("PartDesign::Pad", "Pad012")
body.addObject(pad13)
pad13.Profile = sketch14
pad13.Length = 0.01
pad13.Reversed = True

# Sketch on XY plane
sketch15 = doc.addObject("Sketcher::SketchObject", "Sketch014")
body.addObject(sketch15)
sketch15.AttachmentSupport = (doc.XY_Plane, [""])
sketch15.MapMode = "FlatFace"
sketch15.AttachmentOffset = App.Placement(Vector(0, 0, 21), App.Rotation())
sketch15.addGeometry([
    Part.LineSegment(Vector(-15, 29, 0), Vector(-15, 9, 0)),
    Part.LineSegment(Vector(-15, 9, 0), Vector(15, 9, 0)),
    Part.LineSegment(Vector(15, 9, 0), Vector(15, 29, 0)),
    Part.LineSegment(Vector(15, 29, 0), Vector(-15, 29, 0)),
], False)
sketch15.addConstraint([
    Sketcher.Constraint("Coincident", 0, 2, 1, 1),
    Sketcher.Constraint("Coincident", 1, 2, 2, 1),
    Sketcher.Constraint("Coincident", 2, 2, 3, 1),
    Sketcher.Constraint("Coincident", 3, 2, 0, 1),
    Sketcher.Constraint("Vertical", 0),
    Sketcher.Constraint("Horizontal", 1),
    Sketcher.Constraint("Vertical", 2),
    Sketcher.Constraint("Horizontal", 3),
    Sketcher.Constraint("DistanceX", 1, 1, 1, 2, Q("30.117157 mm")),
    Sketcher.Constraint("DistanceY", 0, 2, 0, 1, Q("20.117157 mm")),
    Sketcher.Constraint("DistanceX", 0, 2, -1, 1, Q("15.058579 mm")),
    Sketcher.Constraint("DistanceY", -1, 1, 0, 2, Q("8.941421 mm")),
])
pad14 = doc.addObject("PartDesign::Pad", "Pad013")
body.addObject(pad14)
pad14.Profile = sketch15
pad14.Length = 0.01

# Sketch on XZ plane
sketch16 = doc.addObject("Sketcher::SketchObject", "Sketch015")
body.addObject(sketch16)
sketch16.AttachmentSupport = (doc.XZ_Plane, [""])
sketch16.MapMode = "FlatFace"
sketch16.AttachmentOffset = App.Placement(Vector(0, 0, -34), App.Rotation())
sketch16.addGeometry([
    Part.Circle(Vector(15.5, -15.5, 0), Vector(0, 0, 1), 1.5),
    Part.Circle(Vector(15.5, 15.5, 0), Vector(0, 0, 1), 1.5),
    Part.Circle(Vector(-15.5, 15.5, 0), Vector(0, 0, 1), 1.5),
    Part.Circle(Vector(-15.5, -15.5, 0), Vector(0, 0, 1), 1.5),
], False)
sketch16.addConstraint([
    Sketcher.Constraint("Equal", 0, 1),
    Sketcher.Constraint("Equal", 1, 2),
    Sketcher.Constraint("Equal", 2, 3),
    Sketcher.Constraint("Symmetric", 0, 3, 2, 3, -1, 1),
    Sketcher.Constraint("Symmetric", 1, 3, 3, 3, -1, 1),
    Sketcher.Constraint("Symmetric", 1, 3, 2, 3, -2),
    Sketcher.Constraint("Diameter", 0, Q("3 mm")),
    Sketcher.Constraint("DistanceY", 0, 3, 1, 3, Q("31 mm")),
    Sketcher.Constraint("DistanceX", 2, 3, 1, 3, Q("31 mm")),
])
pocket2 = doc.addObject("PartDesign::Pocket", "Pocket001")
body.addObject(pocket2)
pocket2.Profile = sketch16
pocket2.Length = 3

# Sketch on XZ plane
sketch17 = doc.addObject("Sketcher::SketchObject", "Sketch016")
body.addObject(sketch17)
sketch17.AttachmentSupport = (doc.XZ_Plane, [""])
sketch17.MapMode = "FlatFace"
sketch17.AttachmentOffset = App.Placement(Vector(0, 0, -60.4), App.Rotation())
sketch17.addGeometry([
    Part.LineSegment(Vector(-4, -12, 0), Vector(-4, -2, 0)),
    Part.LineSegment(Vector(-4, -2, 0), Vector(14, -2, 0)),
    Part.LineSegment(Vector(14, -2, 0), Vector(14, -12, 0)),
    Part.LineSegment(Vector(14, -12, 0), Vector(-4, -12, 0)),
], False)
sketch17.addConstraint([
    Sketcher.Constraint("Coincident", 0, 2, 1, 1),
    Sketcher.Constraint("Coincident", 1, 2, 2, 1),
    Sketcher.Constraint("Coincident", 2, 2, 3, 1),
    Sketcher.Constraint("Coincident", 3, 2, 0, 1),
    Sketcher.Constraint("Vertical", 0),
    Sketcher.Constraint("Horizontal", 1),
    Sketcher.Constraint("Vertical", 2),
    Sketcher.Constraint("Horizontal", 3),
    Sketcher.Constraint("DistanceY", 0, 2, -1, 1, Q("2 mm")),
    Sketcher.Constraint("DistanceY", 0, 1, 0, 2, Q("9.816019 mm")),
    Sketcher.Constraint("DistanceX", 1, 1, 1, 2, Q("17.937634 mm")),
    Sketcher.Constraint("DistanceX", -1, 1, 1, 2, Q("14.21137 mm")),
])
pocket3 = doc.addObject("PartDesign::Pocket", "Pocket002")
body.addObject(pocket3)
pocket3.Profile = sketch17
pocket3.Length = 17.8
pocket3.Reversed = True

doc.recompute()
